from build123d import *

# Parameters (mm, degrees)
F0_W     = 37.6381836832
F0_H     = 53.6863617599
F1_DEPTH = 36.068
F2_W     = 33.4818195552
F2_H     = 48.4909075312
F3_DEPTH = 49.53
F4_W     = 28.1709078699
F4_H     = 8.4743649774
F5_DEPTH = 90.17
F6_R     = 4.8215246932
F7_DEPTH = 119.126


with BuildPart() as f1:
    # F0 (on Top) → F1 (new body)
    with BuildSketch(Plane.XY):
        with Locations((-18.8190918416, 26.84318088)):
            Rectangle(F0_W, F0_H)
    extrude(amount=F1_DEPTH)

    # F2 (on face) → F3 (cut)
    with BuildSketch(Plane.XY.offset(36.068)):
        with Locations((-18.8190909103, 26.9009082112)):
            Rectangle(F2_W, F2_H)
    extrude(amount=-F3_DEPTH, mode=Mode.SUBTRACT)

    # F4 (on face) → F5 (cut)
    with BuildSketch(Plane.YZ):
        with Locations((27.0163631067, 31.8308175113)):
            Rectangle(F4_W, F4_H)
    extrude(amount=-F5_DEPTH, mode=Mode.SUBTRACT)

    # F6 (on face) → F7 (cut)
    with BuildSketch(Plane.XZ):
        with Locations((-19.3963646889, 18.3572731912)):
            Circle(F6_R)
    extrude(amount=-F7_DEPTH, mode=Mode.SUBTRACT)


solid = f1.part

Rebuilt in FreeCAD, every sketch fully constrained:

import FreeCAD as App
import Part
import Sketcher
Q = App.Units.Quantity


def add_polygon(sketch, points):
    """Adds a closed chain of lines whose ends are joined by coincident constraints."""
    first, n = sketch.GeometryCount, len(points)
    for a, b in zip(points, points[1:] + points[:1]):
        sketch.addGeometry(Part.LineSegment(App.Vector(*a, 0), App.Vector(*b, 0)), False)
    for i in range(n):
        sketch.addConstraint(Sketcher.Constraint("Coincident", first + i, 2, first + (i + 1) % n, 1))

doc = App.newDocument("Part")
body = doc.addObject("PartDesign::Body", "Body")

# Sketch on XY plane
sketch1 = body.newObject("Sketcher::SketchObject", "Sketch")
sketch1.AttachmentSupport = (doc.getObject("XY_Plane"), [""])
sketch1.MapMode = "FlatFace"
add_polygon(sketch1, [(-37.638184, 53.686362), (-37.638184, 0), (0, 0), (0, 53.686362)])  # lines 0-3
sketch1.addConstraint([
    Sketcher.Constraint("Vertical", 0),
    Sketcher.Constraint("Horizontal", 1),
    Sketcher.Constraint("Vertical", 2),
    Sketcher.Constraint("Horizontal", 3),
    Sketcher.Constraint("Coincident", 1, 2, -1, 1),
    Sketcher.Constraint("DistanceY", 0, 2, 0, 1, Q("53.686362 mm")),
    Sketcher.Constraint("DistanceX", 1, 1, 1, 2, Q("37.638184 mm")),
])
pad1 = body.newObject("PartDesign::Pad", "Pad")
pad1.Profile = sketch1
pad1.Length = Q("1.42 in")

# Sketch on XY plane
sketch2 = body.newObject("Sketcher::SketchObject", "Sketch001")
sketch2.AttachmentSupport = (doc.getObject("XY_Plane"), [""])
sketch2.MapMode = "FlatFace"
sketch2.AttachmentOffset = App.Placement(App.Vector(0, 0, 1.42 * 25.4), App.Rotation())
add_polygon(sketch2, [(-35.560001, 51.146362), (-35.560001, 2.655454), (-2.078181, 2.655454), (-2.078181, 51.146362)])  # lines 0-3
sketch2.addConstraint([
    Sketcher.Constraint("Vertical", 0),
    Sketcher.Constraint("Horizontal", 1),
    Sketcher.Constraint("Vertical", 2),
    Sketcher.Constraint("Horizontal", 3),
    Sketcher.Constraint("DistanceX", 0, 2, -1, 1, Q("1.4 in")),
    Sketcher.Constraint("DistanceX", 1, 1, 1, 2, Q("33.48182 mm")),
    Sketcher.Constraint("DistanceY", 0, 2, 0, 1, Q("48.490908 mm")),
    Sketcher.Constraint("DistanceY", -1, 1, 2, 2, Q("51.146362 mm")),
])
pocket1 = body.newObject("PartDesign::Pocket", "Pocket")
pocket1.Profile = sketch2
pocket1.Length = Q("1.95 in")

# Sketch on YZ plane
sketch3 = body.newObject("Sketcher::SketchObject", "Sketch002")
sketch3.AttachmentSupport = (doc.getObject("YZ_Plane"), [""])
sketch3.MapMode = "FlatFace"
add_polygon(sketch3, [(12.930909, 36.068), (12.930909, 27.593635), (41.101817, 27.593635), (41.101817, 36.068)])  # lines 0-3
sketch3.addConstraint([
    Sketcher.Constraint("Vertical", 0),
    Sketcher.Constraint("Horizontal", 1),
    Sketcher.Constraint("Vertical", 2),
    Sketcher.Constraint("Horizontal", 3),
    Sketcher.Constraint("DistanceY", -1, 1, 2, 2, Q("1.42 in")),
    Sketcher.Constraint("DistanceX", 1, 1, 1, 2, Q("28.170908 mm")),
    Sketcher.Constraint("DistanceY", 0, 2, 0, 1, Q("8.474365 mm")),
    Sketcher.Constraint("DistanceX", -1, 1, 0, 2, Q("12.930909 mm")),
])
pocket2 = body.newObject("PartDesign::Pocket", "Pocket001")
pocket2.Profile = sketch3
pocket2.Length = Q("3.55 in")

# Sketch on XZ plane
sketch4 = body.newObject("Sketcher::SketchObject", "Sketch003")
sketch4.AttachmentSupport = (doc.getObject("XZ_Plane"), [""])
sketch4.MapMode = "FlatFace"
sketch4.addGeometry(Part.Circle(App.Vector(-19.396365, 18.357273, 0), App.Vector(0, 0, 1), 4.821525), False)
sketch4.addConstraint([
    Sketcher.Constraint("Diameter", 0, Q("9.643049 mm")),
    Sketcher.Constraint("DistanceX", 0, 3, -1, 1, Q("19.396365 mm")),
    Sketcher.Constraint("DistanceY", -1, 1, 0, 3, Q("18.357273 mm")),
])
pocket3 = body.newObject("PartDesign::Pocket", "Pocket002")
pocket3.Profile = sketch4
pocket3.Length = Q("4.69 in")

doc.recompute()
